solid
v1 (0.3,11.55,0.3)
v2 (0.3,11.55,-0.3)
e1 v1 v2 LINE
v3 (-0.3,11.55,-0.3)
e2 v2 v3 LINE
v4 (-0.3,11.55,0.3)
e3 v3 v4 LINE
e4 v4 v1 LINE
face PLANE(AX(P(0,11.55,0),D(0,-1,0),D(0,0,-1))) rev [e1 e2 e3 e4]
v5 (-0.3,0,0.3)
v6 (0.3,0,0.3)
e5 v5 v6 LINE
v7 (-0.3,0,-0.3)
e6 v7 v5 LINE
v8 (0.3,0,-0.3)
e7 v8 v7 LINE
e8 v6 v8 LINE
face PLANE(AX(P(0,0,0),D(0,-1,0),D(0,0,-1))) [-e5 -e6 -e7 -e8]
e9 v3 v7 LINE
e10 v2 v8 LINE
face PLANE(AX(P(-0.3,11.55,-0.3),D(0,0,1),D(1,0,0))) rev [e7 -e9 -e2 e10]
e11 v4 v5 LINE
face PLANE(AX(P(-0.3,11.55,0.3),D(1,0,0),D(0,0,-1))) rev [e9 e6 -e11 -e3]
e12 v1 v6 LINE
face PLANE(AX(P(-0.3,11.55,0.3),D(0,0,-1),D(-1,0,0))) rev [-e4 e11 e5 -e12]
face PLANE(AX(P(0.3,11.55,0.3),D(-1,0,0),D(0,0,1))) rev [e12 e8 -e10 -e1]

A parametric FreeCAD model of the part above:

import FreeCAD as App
import Part
import Sketcher


def add_polygon(sketch, points):
    """Adds a closed chain of lines whose ends are joined by coincident constraints."""
    first, n = sketch.GeometryCount, len(points)
    for a, b in zip(points, points[1:] + points[:1]):
        sketch.addGeometry(Part.LineSegment(App.Vector(*a, 0), App.Vector(*b, 0)), False)
    for i in range(n):
        sketch.addConstraint(Sketcher.Constraint("Coincident", first + i, 2, first + (i + 1) % n, 1))

doc = App.newDocument("Part")
body = doc.addObject("PartDesign::Body", "Body")

# Sketch on XZ plane
sketch1 = body.newObject("Sketcher::SketchObject", "Sketch")
sketch1.AttachmentSupport = (doc.getObject("XZ_Plane"), [""])
sketch1.MapMode = "FlatFace"
add_polygon(sketch1, [(-0.3, -0.3), (-0.3, 0.3), (0.3, 0.3), (0.3, -0.3)])  # lines 0-3
sketch1.addConstraint([
    Sketcher.Constraint("Vertical", 0),
    Sketcher.Constraint("Horizontal", 1),
    Sketcher.Constraint("Vertical", 2),
    Sketcher.Constraint("Horizontal", 3),
    Sketcher.Constraint("Symmetric", 0, 2, 2, 2, -1, 1),
    Sketcher.Constraint("Equal", 3, 0),
    Sketcher.Constraint("DistanceX", 1, 1, 1, 2, 0.6),
])
pad1 = body.newObject("PartDesign::Pad", "Pad")
pad1.Profile = sketch1
pad1.Length = 11.55
pad1.Reversed = True

doc.recompute()
